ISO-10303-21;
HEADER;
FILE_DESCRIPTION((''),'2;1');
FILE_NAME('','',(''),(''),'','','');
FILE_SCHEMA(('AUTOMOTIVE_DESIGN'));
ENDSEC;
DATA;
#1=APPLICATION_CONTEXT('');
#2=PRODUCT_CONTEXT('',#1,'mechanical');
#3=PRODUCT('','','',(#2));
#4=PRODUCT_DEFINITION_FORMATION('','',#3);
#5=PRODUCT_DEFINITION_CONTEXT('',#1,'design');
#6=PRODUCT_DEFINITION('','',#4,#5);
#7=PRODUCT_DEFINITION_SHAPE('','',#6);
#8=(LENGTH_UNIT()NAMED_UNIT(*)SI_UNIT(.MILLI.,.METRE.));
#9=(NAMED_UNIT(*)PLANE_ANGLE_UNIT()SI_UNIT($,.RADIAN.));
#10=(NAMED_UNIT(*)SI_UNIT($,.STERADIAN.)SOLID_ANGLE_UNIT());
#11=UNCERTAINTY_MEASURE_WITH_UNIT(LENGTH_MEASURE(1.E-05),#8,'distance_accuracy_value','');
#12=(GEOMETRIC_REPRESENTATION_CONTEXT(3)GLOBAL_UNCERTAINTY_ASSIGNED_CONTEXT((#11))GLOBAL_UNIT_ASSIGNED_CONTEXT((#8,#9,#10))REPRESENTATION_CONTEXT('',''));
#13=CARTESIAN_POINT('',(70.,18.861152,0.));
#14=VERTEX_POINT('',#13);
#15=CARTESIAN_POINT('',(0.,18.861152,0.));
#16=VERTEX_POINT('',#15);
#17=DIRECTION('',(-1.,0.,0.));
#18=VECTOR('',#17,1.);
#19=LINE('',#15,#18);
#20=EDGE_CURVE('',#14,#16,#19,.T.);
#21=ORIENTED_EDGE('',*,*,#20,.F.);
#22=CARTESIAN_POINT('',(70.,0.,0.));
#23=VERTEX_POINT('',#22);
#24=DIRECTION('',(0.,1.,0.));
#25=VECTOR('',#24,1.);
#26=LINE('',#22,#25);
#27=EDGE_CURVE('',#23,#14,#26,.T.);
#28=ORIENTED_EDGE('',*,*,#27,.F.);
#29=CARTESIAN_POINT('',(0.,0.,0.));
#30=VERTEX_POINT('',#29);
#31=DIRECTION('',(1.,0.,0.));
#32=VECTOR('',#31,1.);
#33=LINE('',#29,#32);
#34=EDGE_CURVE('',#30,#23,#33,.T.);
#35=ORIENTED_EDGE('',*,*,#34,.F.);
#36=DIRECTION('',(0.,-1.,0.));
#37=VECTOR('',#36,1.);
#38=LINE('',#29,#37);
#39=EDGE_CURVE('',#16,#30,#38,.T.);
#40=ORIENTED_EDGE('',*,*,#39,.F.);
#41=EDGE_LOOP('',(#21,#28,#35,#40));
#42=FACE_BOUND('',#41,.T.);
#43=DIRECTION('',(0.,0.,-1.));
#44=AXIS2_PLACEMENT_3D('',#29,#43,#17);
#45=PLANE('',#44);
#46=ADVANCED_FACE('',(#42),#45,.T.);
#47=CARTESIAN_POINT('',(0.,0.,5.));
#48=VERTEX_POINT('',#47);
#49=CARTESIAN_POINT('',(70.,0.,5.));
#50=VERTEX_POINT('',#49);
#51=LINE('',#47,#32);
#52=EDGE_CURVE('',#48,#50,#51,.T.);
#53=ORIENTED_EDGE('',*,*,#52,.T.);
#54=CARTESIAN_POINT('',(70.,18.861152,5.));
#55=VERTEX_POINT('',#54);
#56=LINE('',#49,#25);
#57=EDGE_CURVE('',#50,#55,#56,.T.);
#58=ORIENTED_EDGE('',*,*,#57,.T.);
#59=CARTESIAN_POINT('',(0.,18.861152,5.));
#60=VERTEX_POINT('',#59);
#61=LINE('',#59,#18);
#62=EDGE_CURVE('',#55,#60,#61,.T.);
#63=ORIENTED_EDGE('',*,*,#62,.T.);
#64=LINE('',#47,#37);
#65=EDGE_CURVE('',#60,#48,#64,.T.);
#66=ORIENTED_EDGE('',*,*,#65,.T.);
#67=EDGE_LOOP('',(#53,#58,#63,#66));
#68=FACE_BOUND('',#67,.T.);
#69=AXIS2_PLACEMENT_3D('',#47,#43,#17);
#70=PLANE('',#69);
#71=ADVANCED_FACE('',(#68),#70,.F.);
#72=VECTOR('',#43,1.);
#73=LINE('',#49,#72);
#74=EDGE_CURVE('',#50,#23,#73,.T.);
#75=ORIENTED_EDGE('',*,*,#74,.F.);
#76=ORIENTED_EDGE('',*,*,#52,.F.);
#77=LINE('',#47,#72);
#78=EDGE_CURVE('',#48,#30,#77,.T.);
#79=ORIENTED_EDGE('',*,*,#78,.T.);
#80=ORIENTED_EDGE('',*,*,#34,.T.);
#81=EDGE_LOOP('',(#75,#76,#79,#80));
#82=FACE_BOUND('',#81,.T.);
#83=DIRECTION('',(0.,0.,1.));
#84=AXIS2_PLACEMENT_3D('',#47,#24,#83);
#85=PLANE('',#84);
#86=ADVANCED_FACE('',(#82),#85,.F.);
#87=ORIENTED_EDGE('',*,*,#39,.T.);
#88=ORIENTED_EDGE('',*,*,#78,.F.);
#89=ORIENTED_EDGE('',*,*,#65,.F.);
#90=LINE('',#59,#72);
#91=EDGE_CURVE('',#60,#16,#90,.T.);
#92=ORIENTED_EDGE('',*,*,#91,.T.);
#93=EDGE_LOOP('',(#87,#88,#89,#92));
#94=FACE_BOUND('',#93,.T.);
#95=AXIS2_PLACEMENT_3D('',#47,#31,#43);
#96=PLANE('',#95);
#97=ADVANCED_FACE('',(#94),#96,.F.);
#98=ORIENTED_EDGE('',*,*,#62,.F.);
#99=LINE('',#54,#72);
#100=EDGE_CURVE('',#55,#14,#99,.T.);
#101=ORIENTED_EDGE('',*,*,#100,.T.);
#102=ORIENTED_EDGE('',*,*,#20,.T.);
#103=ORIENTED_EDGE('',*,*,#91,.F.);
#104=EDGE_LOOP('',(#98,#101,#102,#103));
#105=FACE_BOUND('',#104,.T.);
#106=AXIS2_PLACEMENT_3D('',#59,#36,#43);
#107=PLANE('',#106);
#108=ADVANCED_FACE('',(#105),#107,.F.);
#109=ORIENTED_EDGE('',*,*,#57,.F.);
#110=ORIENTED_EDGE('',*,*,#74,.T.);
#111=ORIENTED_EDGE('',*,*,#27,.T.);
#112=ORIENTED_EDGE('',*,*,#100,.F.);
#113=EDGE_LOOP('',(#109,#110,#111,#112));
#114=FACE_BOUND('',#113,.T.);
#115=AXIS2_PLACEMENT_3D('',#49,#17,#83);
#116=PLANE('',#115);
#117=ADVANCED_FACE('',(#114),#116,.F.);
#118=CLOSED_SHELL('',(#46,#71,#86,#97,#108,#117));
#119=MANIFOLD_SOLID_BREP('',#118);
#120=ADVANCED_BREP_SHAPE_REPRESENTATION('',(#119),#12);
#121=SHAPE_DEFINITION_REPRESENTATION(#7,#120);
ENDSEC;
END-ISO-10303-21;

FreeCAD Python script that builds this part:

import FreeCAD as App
import Part
import Sketcher

V = App.Vector
Q = App.Units.Quantity


def add_polygon(sketch, points):
    """Adds a closed chain of lines whose ends are joined by coincident constraints."""
    first, n = sketch.GeometryCount, len(points)
    for a, b in zip(points, points[1:] + points[:1]):
        sketch.addGeometry(Part.LineSegment(App.Vector(*a, 0), App.Vector(*b, 0)), False)
    for i in range(n):
        sketch.addConstraint(Sketcher.Constraint("Coincident", first + i, 2, first + (i + 1) % n, 1))

doc = App.newDocument("Part")
body = doc.addObject("PartDesign::Body", "Body")

# Sketch on XY plane
sketch1 = body.newObject("Sketcher::SketchObject", "Sketch")
sketch1.AttachmentSupport = (doc.getObject("XY_Plane"), [""])
sketch1.MapMode = "FlatFace"
add_polygon(sketch1, [(0, 19), (0, 0), (70, 0), (70, 19)])  # lines 0-3
sketch1.addConstraint([
    Sketcher.Constraint("Vertical", 0),
    Sketcher.Constraint("Horizontal", 1),
    Sketcher.Constraint("Vertical", 2),
    Sketcher.Constraint("Horizontal", 3),
    Sketcher.Constraint("Coincident", 0, 2, -1, 1),
    Sketcher.Constraint("DistanceX", 1, 1, 1, 2, Q("70 mm")),
    Sketcher.Constraint("DistanceY", 0, 2, 0, 1, Q("18.861152 mm")),
])
pad1 = body.newObject("PartDesign::Pad", "Pad")
pad1.Profile = sketch1
pad1.Length = 5

doc.recompute()
